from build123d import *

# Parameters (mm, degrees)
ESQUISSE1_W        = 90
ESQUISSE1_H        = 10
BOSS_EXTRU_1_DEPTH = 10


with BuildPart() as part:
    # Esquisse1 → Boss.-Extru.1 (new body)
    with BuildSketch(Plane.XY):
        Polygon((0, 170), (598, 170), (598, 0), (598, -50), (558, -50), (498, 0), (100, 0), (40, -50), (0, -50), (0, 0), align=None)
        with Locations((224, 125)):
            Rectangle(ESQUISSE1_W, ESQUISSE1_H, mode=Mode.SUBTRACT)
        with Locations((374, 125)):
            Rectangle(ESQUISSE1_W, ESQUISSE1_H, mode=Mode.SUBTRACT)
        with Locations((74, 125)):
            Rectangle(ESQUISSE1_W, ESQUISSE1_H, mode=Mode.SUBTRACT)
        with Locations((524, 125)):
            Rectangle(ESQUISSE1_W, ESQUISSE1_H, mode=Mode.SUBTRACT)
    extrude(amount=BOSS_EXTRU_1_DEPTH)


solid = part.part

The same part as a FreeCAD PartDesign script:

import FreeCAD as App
import Part
import Sketcher

V = App.Vector
Q = App.Units.Quantity


def add_polygon(sketch, points):
    """Adds a closed chain of lines whose ends are joined by coincident constraints."""
    first, n = sketch.GeometryCount, len(points)
    for a, b in zip(points, points[1:] + points[:1]):
        sketch.addGeometry(Part.LineSegment(App.Vector(*a, 0), App.Vector(*b, 0)), False)
    for i in range(n):
        sketch.addConstraint(Sketcher.Constraint("Coincident", first + i, 2, first + (i + 1) % n, 1))

doc = App.newDocument("Part")
body = doc.addObject("PartDesign::Body", "Body")

# Sketch on XY plane
sketch1 = body.newObject("Sketcher::SketchObject", "Sketch")
sketch1.AttachmentSupport = (doc.getObject("XY_Plane"), [""])
sketch1.MapMode = "FlatFace"
add_polygon(sketch1, [(598, 170), (0, 170), (0, -50), (40, -50), (100, 0), (498, 0), (558, -50), (598, -50)])  # lines 0-7
add_polygon(sketch1, [(479, 120), (479, 130), (569, 130), (569, 120)])  # lines 8-11
add_polygon(sketch1, [(329, 120), (329, 130), (419, 130), (419, 120)])  # lines 12-15
add_polygon(sketch1, [(179, 120), (179, 130), (269, 130), (269, 120)])  # lines 16-19
add_polygon(sketch1, [(29, 120), (29, 130), (119, 130), (119, 120)])  # lines 20-23
sketch1.addConstraint([
    Sketcher.Constraint("Horizontal", 0),
    Sketcher.Constraint("Vertical", 1),
    Sketcher.Constraint("Horizontal", 2),
    Sketcher.Constraint("Horizontal", 4),
    Sketcher.Constraint("Horizontal", 6),
    Sketcher.Constraint("Vertical", 7),
    Sketcher.Constraint("Vertical", 8),
    Sketcher.Constraint("Horizontal", 9),
    Sketcher.Constraint("Vertical", 10),
    Sketcher.Constraint("Horizontal", 11),
    Sketcher.Constraint("Vertical", 12),
    Sketcher.Constraint("Horizontal", 13),
    Sketcher.Constraint("Vertical", 14),
    Sketcher.Constraint("Horizontal", 15),
    Sketcher.Constraint("Vertical", 16),
    Sketcher.Constraint("Horizontal", 17),
    Sketcher.Constraint("Vertical", 18),
    Sketcher.Constraint("Horizontal", 19),
    Sketcher.Constraint("Vertical", 20),
    Sketcher.Constraint("Horizontal", 21),
    Sketcher.Constraint("Vertical", 22),
    Sketcher.Constraint("Horizontal", 23),
    Sketcher.Constraint("PointOnObject", 0, 2, -2),
    Sketcher.Constraint("PointOnObject", 3, 2, -1),
    Sketcher.Constraint("Horizontal", 2, 2, 5, 2),
    Sketcher.Constraint("Horizontal", 9, 2, 12, 2),
    Sketcher.Constraint("Horizontal", 11, 2, 14, 2),
    Sketcher.Constraint("Horizontal", 13, 2, 16, 2),
    Sketcher.Constraint("Horizontal", 15, 2, 18, 2),
    Sketcher.Constraint("Horizontal", 17, 2, 20, 2),
    Sketcher.Constraint("Horizontal", 19, 2, 22, 2),
    Sketcher.Constraint("Equal", 2, 6),
    Sketcher.Constraint("Equal", 11, 13),
    Sketcher.Constraint("Equal", 15, 17),
    Sketcher.Constraint("Equal", 19, 21),
    Sketcher.Constraint("Equal", 3, 5),
    Sketcher.Constraint("DistanceX", 0, 2, 0, 1, Q("598 mm")),
    Sketcher.Constraint("DistanceX", 2, 1, 2, 2, Q("40 mm")),
    Sketcher.Constraint("DistanceX", 4, 1, 4, 2, Q("398 mm")),
    Sketcher.Constraint("DistanceX", 9, 1, 9, 2, Q("90 mm")),
    Sketcher.Constraint("DistanceY", 1, 2, 1, 1, Q("220 mm")),
    Sketcher.Constraint("DistanceY", 8, 1, 8, 2, Q("10 mm")),
    Sketcher.Constraint("DistanceY", -1, 1, 0, 2, Q("170 mm")),
    Sketcher.Constraint("DistanceX", -1, 1, 8, 2, Q("479 mm")),
    Sketcher.Constraint("DistanceY", -1, 1, 8, 2, Q("130 mm")),
    Sketcher.Constraint("DistanceX", -1, 1, 12, 2, Q("329 mm")),
    Sketcher.Constraint("DistanceX", -1, 1, 16, 2, Q("179 mm")),
    Sketcher.Constraint("DistanceX", -1, 1, 20, 2, Q("29 mm")),
])
pad1 = body.newObject("PartDesign::Pad", "Pad")
pad1.Profile = sketch1
pad1.Length = 10

doc.recompute()
